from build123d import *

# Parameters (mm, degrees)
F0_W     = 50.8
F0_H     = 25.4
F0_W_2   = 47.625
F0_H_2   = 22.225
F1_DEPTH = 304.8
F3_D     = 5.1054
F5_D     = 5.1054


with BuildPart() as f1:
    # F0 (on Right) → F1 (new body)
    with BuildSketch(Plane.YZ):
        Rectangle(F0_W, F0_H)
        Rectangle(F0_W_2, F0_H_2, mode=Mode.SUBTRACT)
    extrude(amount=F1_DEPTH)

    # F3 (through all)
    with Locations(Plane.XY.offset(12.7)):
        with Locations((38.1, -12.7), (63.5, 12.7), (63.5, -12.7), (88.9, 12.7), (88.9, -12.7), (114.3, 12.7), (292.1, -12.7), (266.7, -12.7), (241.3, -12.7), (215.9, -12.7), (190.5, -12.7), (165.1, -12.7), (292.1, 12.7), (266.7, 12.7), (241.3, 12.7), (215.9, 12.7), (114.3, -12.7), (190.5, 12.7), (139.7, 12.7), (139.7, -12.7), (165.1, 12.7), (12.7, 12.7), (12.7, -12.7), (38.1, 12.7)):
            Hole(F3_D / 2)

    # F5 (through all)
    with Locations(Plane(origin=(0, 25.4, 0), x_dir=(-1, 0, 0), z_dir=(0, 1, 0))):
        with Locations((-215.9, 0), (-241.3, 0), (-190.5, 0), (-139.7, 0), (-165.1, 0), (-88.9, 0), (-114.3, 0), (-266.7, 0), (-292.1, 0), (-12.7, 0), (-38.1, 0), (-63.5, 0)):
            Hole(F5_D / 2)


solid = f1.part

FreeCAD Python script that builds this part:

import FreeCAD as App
import Part
import Sketcher
from FreeCAD import Vector
Q = App.Units.Quantity


def add_polygon(sketch, points):
    """Adds a closed chain of lines whose ends are joined by coincident constraints."""
    first, n = sketch.GeometryCount, len(points)
    for a, b in zip(points, points[1:] + points[:1]):
        sketch.addGeometry(Part.LineSegment(App.Vector(*a, 0), App.Vector(*b, 0)), False)
    for i in range(n):
        sketch.addConstraint(Sketcher.Constraint("Coincident", first + i, 2, first + (i + 1) % n, 1))

doc = App.newDocument("Part")
body = doc.addObject("PartDesign::Body", "Body")

# Sketch on YZ plane
sketch1 = body.newObject("Sketcher::SketchObject", "Sketch")
sketch1.AttachmentSupport = (doc.getObject("YZ_Plane"), [""])
sketch1.MapMode = "FlatFace"
add_polygon(sketch1, [(-25.4, 12.7), (-25.4, -12.7), (25.4, -12.7), (25.4, 12.7)])  # lines 0-3
add_polygon(sketch1, [(23.8125, -11.1125), (-23.8125, -11.1125), (-23.8125, 11.1125), (23.8125, 11.1125)])  # lines 4-7
sketch1.addConstraint([
    Sketcher.Constraint("Vertical", 0),
    Sketcher.Constraint("Horizontal", 1),
    Sketcher.Constraint("Vertical", 2),
    Sketcher.Constraint("Horizontal", 3),
    Sketcher.Constraint("Horizontal", 4),
    Sketcher.Constraint("Vertical", 5),
    Sketcher.Constraint("Horizontal", 6),
    Sketcher.Constraint("Vertical", 7),
    Sketcher.Constraint("Symmetric", 0, 2, 2, 2, -1, 1),
    Sketcher.Constraint("Symmetric", 4, 2, 6, 2, -1, 1),
    Sketcher.Constraint("DistanceX", 1, 1, 1, 2, Q("2 in")),
    Sketcher.Constraint("DistanceY", 0, 2, 0, 1, Q("1 in")),
    Sketcher.Constraint("DistanceX", 4, 2, 4, 1, Q("1.875 in")),
    Sketcher.Constraint("DistanceY", 5, 1, 5, 2, Q("0.875 in")),
])
pad1 = body.newObject("PartDesign::Pad", "Pad")
pad1.Profile = sketch1
pad1.Length = Q("12 in")

# Sketch on XY plane
sketch2 = body.newObject("Sketcher::SketchObject", "Sketch001")
sketch2.AttachmentSupport = (doc.getObject("XY_Plane"), [""])
sketch2.MapMode = "FlatFace"
sketch2.AttachmentOffset = App.Placement(Vector(0, 0, 0.5 * 25.4), App.Rotation())
sketch2.addGeometry([
    Part.Circle(Vector(38.1, -12.7, 0), Vector(0, 0, 1), 2.5527),  # 0
    Part.Circle(Vector(63.5, 12.7, 0), Vector(0, 0, 1), 2.5527),  # 1
    Part.Circle(Vector(63.5, -12.7, 0), Vector(0, 0, 1), 2.5527),  # 2
    Part.Circle(Vector(88.9, 12.7, 0), Vector(0, 0, 1), 2.5527),  # 3
    Part.Circle(Vector(88.9, -12.7, 0), Vector(0, 0, 1), 2.5527),  # 4
    Part.Circle(Vector(114.3, 12.7, 0), Vector(0, 0, 1), 2.5527),  # 5
    Part.Circle(Vector(292.1, -12.7, 0), Vector(0, 0, 1), 2.5527),  # 6
    Part.Circle(Vector(266.7, -12.7, 0), Vector(0, 0, 1), 2.5527),  # 7
    Part.Circle(Vector(241.3, -12.7, 0), Vector(0, 0, 1), 2.5527),  # 8
    Part.Circle(Vector(215.9, -12.7, 0), Vector(0, 0, 1), 2.5527),  # 9
    Part.Circle(Vector(190.5, -12.7, 0), Vector(0, 0, 1), 2.5527),  # 10
    Part.Circle(Vector(165.1, -12.7, 0), Vector(0, 0, 1), 2.5527),  # 11
    Part.Circle(Vector(292.1, 12.7, 0), Vector(0, 0, 1), 2.5527),  # 12
    Part.Circle(Vector(266.7, 12.7, 0), Vector(0, 0, 1), 2.5527),  # 13
    Part.Circle(Vector(241.3, 12.7, 0), Vector(0, 0, 1), 2.5527),  # 14
    Part.Circle(Vector(215.9, 12.7, 0), Vector(0, 0, 1), 2.5527),  # 15
    Part.Circle(Vector(114.3, -12.7, 0), Vector(0, 0, 1), 2.5527),  # 16
    Part.Circle(Vector(190.5, 12.7, 0), Vector(0, 0, 1), 2.5527),  # 17
    Part.Circle(Vector(139.7, 12.7, 0), Vector(0, 0, 1), 2.5527),  # 18
    Part.Circle(Vector(139.7, -12.7, 0), Vector(0, 0, 1), 2.5527),  # 19
    Part.Circle(Vector(165.1, 12.7, 0), Vector(0, 0, 1), 2.5527),  # 20
    Part.Circle(Vector(12.7, 12.7, 0), Vector(0, 0, 1), 2.5527),  # 21
    Part.Circle(Vector(12.7, -12.7, 0), Vector(0, 0, 1), 2.5527),  # 22
    Part.Circle(Vector(38.1, 12.7, 0), Vector(0, 0, 1), 2.5527),  # 23
], False)
sketch2.addConstraint([
    Sketcher.Constraint("Equal", 0, 1),
    Sketcher.Constraint("Equal", 1, 2),
    Sketcher.Constraint("Equal", 2, 3),
    Sketcher.Constraint("Equal", 3, 4),
    Sketcher.Constraint("Equal", 4, 5),
    Sketcher.Constraint("Equal", 5, 6),
    Sketcher.Constraint("Equal", 6, 7),
    Sketcher.Constraint("Equal", 7, 8),
    Sketcher.Constraint("Equal", 8, 9),
    Sketcher.Constraint("Equal", 9, 10),
    Sketcher.Constraint("Equal", 10, 11),
    Sketcher.Constraint("Equal", 11, 12),
    Sketcher.Constraint("Equal", 12, 13),
    Sketcher.Constraint("Equal", 13, 14),
    Sketcher.Constraint("Equal", 14, 15),
    Sketcher.Constraint("Equal", 15, 16),
    Sketcher.Constraint("Equal", 16, 17),
    Sketcher.Constraint("Equal", 17, 18),
    Sketcher.Constraint("Equal", 18, 19),
    Sketcher.Constraint("Equal", 19, 20),
    Sketcher.Constraint("Equal", 20, 21),
    Sketcher.Constraint("Equal", 21, 22),
    Sketcher.Constraint("Equal", 22, 23),
    Sketcher.Constraint("Symmetric", 1, 3, 2, 3, -1),
    Sketcher.Constraint("Symmetric", 3, 3, 4, 3, -1),
    Sketcher.Constraint("Symmetric", 6, 3, 12, 3, -1),
    Sketcher.Constraint("Symmetric", 7, 3, 13, 3, -1),
    Sketcher.Constraint("Symmetric", 8, 3, 14, 3, -1),
    Sketcher.Constraint("Symmetric", 9, 3, 15, 3, -1),
    Sketcher.Constraint("Symmetric", 5, 3, 16, 3, -1),
    Sketcher.Constraint("Symmetric", 10, 3, 17, 3, -1),
    Sketcher.Constraint("Symmetric", 18, 3, 19, 3, -1),
    Sketcher.Constraint("Symmetric", 11, 3, 20, 3, -1),
    Sketcher.Constraint("Symmetric", 21, 3, 22, 3, -1),
    Sketcher.Constraint("Symmetric", 0, 3, 23, 3, -1),
    Sketcher.Constraint("Horizontal", 0, 3, 2, 3),
    Sketcher.Constraint("Horizontal", 1, 3, 3, 3),
    Sketcher.Constraint("Horizontal", 3, 3, 5, 3),
    Sketcher.Constraint("Horizontal", 4, 3, 6, 3),
    Sketcher.Constraint("Horizontal", 6, 3, 7, 3),
    Sketcher.Constraint("Horizontal", 7, 3, 8, 3),
    Sketcher.Constraint("Horizontal", 8, 3, 9, 3),
    Sketcher.Constraint("Horizontal", 9, 3, 10, 3),
    Sketcher.Constraint("Horizontal", 10, 3, 11, 3),
    Sketcher.Constraint("Horizontal", 17, 3, 18, 3),
    Sketcher.Constraint("Horizontal", 20, 3, 21, 3),
    Sketcher.Constraint("Diameter", 0, Q("0.201 in")),
    Sketcher.Constraint("DistanceX", 0, 3, 1, 3, Q("1 in")),
    Sketcher.Constraint("DistanceY", 0, 3, 1, 3, Q("1 in")),
    Sketcher.Constraint("DistanceX", 1, 3, 3, 3, Q("1 in")),
    Sketcher.Constraint("DistanceX", 3, 3, 5, 3, Q("1 in")),
    Sketcher.Constraint("DistanceX", 5, 3, 6, 3, Q("7 in")),
    Sketcher.Constraint("DistanceX", 7, 3, 6, 3, Q("1 in")),
    Sketcher.Constraint("DistanceX", 8, 3, 7, 3, Q("1 in")),
    Sketcher.Constraint("DistanceX", 9, 3, 8, 3, Q("1 in")),
    Sketcher.Constraint("DistanceX", 10, 3, 9, 3, Q("1 in")),
    Sketcher.Constraint("DistanceX", 11, 3, 10, 3, Q("1 in")),
    Sketcher.Constraint("DistanceX", 5, 3, 18, 3, Q("1 in")),
    Sketcher.Constraint("DistanceX", 21, 3, 0, 3, Q("1 in")),
    Sketcher.Constraint("DistanceX", -1, 1, 0, 3, Q("1.5 in")),
])
doc.recompute()
hole = body.newObject("PartDesign::Hole", "Hole")
hole.Profile = sketch2
hole.ThreadType = "None"
hole.Diameter = Q("0.201 in")
hole.DepthType = "ThroughAll"

# Sketch on XZ plane
sketch3 = body.newObject("Sketcher::SketchObject", "Sketch002")
sketch3.AttachmentSupport = (doc.getObject("XZ_Plane"), [""])
sketch3.MapMode = "FlatFace"
sketch3.AttachmentOffset = App.Placement(Vector(0, 0, -1 * 25.4), App.Rotation())
sketch3.addGeometry([
    Part.Circle(Vector(215.9, 0, 0), Vector(0, 0, 1), 2.5527),  # 0
    Part.Circle(Vector(241.3, 0, 0), Vector(0, 0, 1), 2.5527),  # 1
    Part.Circle(Vector(190.5, 0, 0), Vector(0, 0, 1), 2.5527),  # 2
    Part.Circle(Vector(139.7, 0, 0), Vector(0, 0, 1), 2.5527),  # 3
    Part.Circle(Vector(165.1, 0, 0), Vector(0, 0, 1), 2.5527),  # 4
    Part.Circle(Vector(88.9, 0, 0), Vector(0, 0, 1), 2.5527),  # 5
    Part.Circle(Vector(114.3, 0, 0), Vector(0, 0, 1), 2.5527),  # 6
    Part.Circle(Vector(266.7, 0, 0), Vector(0, 0, 1), 2.5527),  # 7
    Part.Circle(Vector(292.1, 0, 0), Vector(0, 0, 1), 2.5527),  # 8
    Part.Circle(Vector(12.7, 0, 0), Vector(0, 0, 1), 2.5527),  # 9
    Part.Circle(Vector(38.1, 0, 0), Vector(0, 0, 1), 2.5527),  # 10
    Part.Circle(Vector(63.5, 0, 0), Vector(0, 0, 1), 2.5527),  # 11
], False)
sketch3.addConstraint([
    Sketcher.Constraint("Equal", 0, 1),
    Sketcher.Constraint("Equal", 1, 2),
    Sketcher.Constraint("Equal", 2, 3),
    Sketcher.Constraint("Equal", 3, 4),
    Sketcher.Constraint("Equal", 4, 5),
    Sketcher.Constraint("Equal", 5, 6),
    Sketcher.Constraint("Equal", 6, 7),
    Sketcher.Constraint("Equal", 7, 8),
    Sketcher.Constraint("Equal", 8, 9),
    Sketcher.Constraint("Equal", 9, 10),
    Sketcher.Constraint("Equal", 10, 11),
    Sketcher.Constraint("PointOnObject", 0, 3, -1),
    Sketcher.Constraint("PointOnObject", 1, 3, -1),
    Sketcher.Constraint("PointOnObject", 2, 3, -1),
    Sketcher.Constraint("PointOnObject", 3, 3, -1),
    Sketcher.Constraint("PointOnObject", 4, 3, -1),
    Sketcher.Constraint("PointOnObject", 5, 3, -1),
    Sketcher.Constraint("PointOnObject", 6, 3, -1),
    Sketcher.Constraint("PointOnObject", 7, 3, -1),
    Sketcher.Constraint("PointOnObject", 8, 3, -1),
    Sketcher.Constraint("PointOnObject", 9, 3, -1),
    Sketcher.Constraint("PointOnObject", 10, 3, -1),
    Sketcher.Constraint("PointOnObject", 11, 3, -1),
    Sketcher.Constraint("Diameter", 0, Q("0.201 in")),
    Sketcher.Constraint("DistanceX", 0, 3, 1, 3, Q("1 in")),
    Sketcher.Constraint("DistanceX", 2, 3, 0, 3, Q("1 in")),
    Sketcher.Constraint("DistanceX", 3, 3, 2, 3, Q("2 in")),
    Sketcher.Constraint("DistanceX", 4, 3, 2, 3, Q("1 in")),
    Sketcher.Constraint("DistanceX", 5, 3, 3, 3, Q("2 in")),
    Sketcher.Constraint("DistanceX", 6, 3, 3, 3, Q("1 in")),
    Sketcher.Constraint("DistanceX", 1, 3, 7, 3, Q("1 in")),
    Sketcher.Constraint("DistanceX", 7, 3, 8, 3, Q("1 in")),
    Sketcher.Constraint("DistanceX", 9, 3, 5, 3, Q("3 in")),
    Sketcher.Constraint("DistanceX", 9, 3, 10, 3, Q("1 in")),
    Sketcher.Constraint("DistanceX", 10, 3, 11, 3, Q("1 in")),
    Sketcher.Constraint("DistanceX", -1, 1, 0, 3, Q("8.5 in")),
])
doc.recompute()
hole2 = body.newObject("PartDesign::Hole", "Hole001")
hole2.Profile = sketch3
hole2.ThreadType = "None"
hole2.Diameter = Q("0.201 in")
hole2.DepthType = "ThroughAll"
hole2.Reversed = True

doc.recompute()
